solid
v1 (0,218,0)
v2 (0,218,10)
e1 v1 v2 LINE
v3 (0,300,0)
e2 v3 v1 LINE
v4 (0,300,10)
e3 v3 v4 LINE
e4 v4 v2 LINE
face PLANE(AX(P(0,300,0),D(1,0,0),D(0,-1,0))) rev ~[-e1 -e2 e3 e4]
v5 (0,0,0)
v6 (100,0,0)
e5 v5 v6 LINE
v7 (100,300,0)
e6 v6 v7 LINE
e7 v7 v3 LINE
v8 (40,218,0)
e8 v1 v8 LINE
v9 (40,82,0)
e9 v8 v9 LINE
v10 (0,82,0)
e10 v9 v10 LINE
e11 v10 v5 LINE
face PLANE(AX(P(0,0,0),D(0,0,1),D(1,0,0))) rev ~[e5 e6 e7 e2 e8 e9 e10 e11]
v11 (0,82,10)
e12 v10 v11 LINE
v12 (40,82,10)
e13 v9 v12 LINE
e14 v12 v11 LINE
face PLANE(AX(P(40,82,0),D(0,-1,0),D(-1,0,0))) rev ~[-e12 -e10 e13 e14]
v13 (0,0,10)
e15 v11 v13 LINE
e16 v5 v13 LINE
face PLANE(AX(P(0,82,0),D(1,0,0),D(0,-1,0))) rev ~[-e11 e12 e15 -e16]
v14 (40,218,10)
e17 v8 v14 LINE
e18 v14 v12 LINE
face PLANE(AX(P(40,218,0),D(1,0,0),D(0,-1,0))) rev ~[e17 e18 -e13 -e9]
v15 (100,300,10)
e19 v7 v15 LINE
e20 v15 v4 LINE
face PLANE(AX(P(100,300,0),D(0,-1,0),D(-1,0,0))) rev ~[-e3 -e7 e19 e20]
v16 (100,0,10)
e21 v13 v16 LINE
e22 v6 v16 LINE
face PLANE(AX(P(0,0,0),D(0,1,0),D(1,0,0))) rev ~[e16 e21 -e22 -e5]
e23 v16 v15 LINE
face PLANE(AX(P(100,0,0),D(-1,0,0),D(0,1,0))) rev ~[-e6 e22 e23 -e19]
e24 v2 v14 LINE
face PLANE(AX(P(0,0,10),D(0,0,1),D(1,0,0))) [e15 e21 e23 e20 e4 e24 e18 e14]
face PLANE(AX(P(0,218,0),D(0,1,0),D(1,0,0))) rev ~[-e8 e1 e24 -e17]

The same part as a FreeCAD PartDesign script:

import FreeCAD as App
import Part
import Sketcher

V = App.Vector
Q = App.Units.Quantity

doc = App.newDocument("Part")
body = doc.addObject("PartDesign::Body", "Body")

# Sketch on XY plane
sketch1 = body.newObject("Sketcher::SketchObject", "Sketch")
sketch1.AttachmentSupport = (doc.getObject("XY_Plane"), [""])
sketch1.MapMode = "FlatFace"
sketch1.addGeometry([
    Part.LineSegment(V(0, 82, 0), V(0, 0, 0)),  # 0
    Part.LineSegment(V(0, 0, 0), V(100, 0, 0)),  # 1
    Part.LineSegment(V(100, 0, 0), V(100, 300, 0)),  # 2
    Part.LineSegment(V(100, 300, 0), V(0, 300, 0)),  # 3
    Part.LineSegment(V(0, 300, 0), V(0, 218, 0)),  # 4
    Part.LineSegment(V(0, 218, 0), V(40, 218, 0)),  # 5
    Part.LineSegment(V(40, 218, 0), V(40, 82, 0)),  # 6
    Part.LineSegment(V(40, 82, 0), V(0, 82, 0)),  # 7
], False)
sketch1.addConstraint([
    Sketcher.Constraint("Coincident", 0, 2, 1, 1),
    Sketcher.Constraint("Coincident", 1, 2, 2, 1),
    Sketcher.Constraint("Coincident", 2, 2, 3, 1),
    Sketcher.Constraint("Coincident", 3, 2, 4, 1),
    Sketcher.Constraint("Coincident", 4, 2, 5, 1),
    Sketcher.Constraint("Coincident", 5, 2, 6, 1),
    Sketcher.Constraint("Coincident", 6, 2, 7, 1),
    Sketcher.Constraint("Coincident", 7, 2, 0, 1),
    Sketcher.Constraint("Vertical", 0),
    Sketcher.Constraint("Horizontal", 1),
    Sketcher.Constraint("Vertical", 2),
    Sketcher.Constraint("Horizontal", 3),
    Sketcher.Constraint("Vertical", 4),
    Sketcher.Constraint("Horizontal", 5),
    Sketcher.Constraint("Vertical", 6),
    Sketcher.Constraint("Horizontal", 7),
    Sketcher.Constraint("Coincident", 0, 2, -1, 1),
    Sketcher.Constraint("PointOnObject", 3, 2, -2),
    Sketcher.Constraint("Equal", 0, 4),
    Sketcher.Constraint("DistanceX", 1, 1, 1, 2, Q("100 mm")),
    Sketcher.Constraint("DistanceX", 5, 1, 5, 2, Q("40 mm")),
    Sketcher.Constraint("DistanceY", 2, 1, 2, 2, Q("300 mm")),
    Sketcher.Constraint("DistanceY", 6, 2, 6, 1, Q("136 mm")),
])
pad1 = body.newObject("PartDesign::Pad", "Pad")
pad1.Profile = sketch1
pad1.Length = 10

doc.recompute()
